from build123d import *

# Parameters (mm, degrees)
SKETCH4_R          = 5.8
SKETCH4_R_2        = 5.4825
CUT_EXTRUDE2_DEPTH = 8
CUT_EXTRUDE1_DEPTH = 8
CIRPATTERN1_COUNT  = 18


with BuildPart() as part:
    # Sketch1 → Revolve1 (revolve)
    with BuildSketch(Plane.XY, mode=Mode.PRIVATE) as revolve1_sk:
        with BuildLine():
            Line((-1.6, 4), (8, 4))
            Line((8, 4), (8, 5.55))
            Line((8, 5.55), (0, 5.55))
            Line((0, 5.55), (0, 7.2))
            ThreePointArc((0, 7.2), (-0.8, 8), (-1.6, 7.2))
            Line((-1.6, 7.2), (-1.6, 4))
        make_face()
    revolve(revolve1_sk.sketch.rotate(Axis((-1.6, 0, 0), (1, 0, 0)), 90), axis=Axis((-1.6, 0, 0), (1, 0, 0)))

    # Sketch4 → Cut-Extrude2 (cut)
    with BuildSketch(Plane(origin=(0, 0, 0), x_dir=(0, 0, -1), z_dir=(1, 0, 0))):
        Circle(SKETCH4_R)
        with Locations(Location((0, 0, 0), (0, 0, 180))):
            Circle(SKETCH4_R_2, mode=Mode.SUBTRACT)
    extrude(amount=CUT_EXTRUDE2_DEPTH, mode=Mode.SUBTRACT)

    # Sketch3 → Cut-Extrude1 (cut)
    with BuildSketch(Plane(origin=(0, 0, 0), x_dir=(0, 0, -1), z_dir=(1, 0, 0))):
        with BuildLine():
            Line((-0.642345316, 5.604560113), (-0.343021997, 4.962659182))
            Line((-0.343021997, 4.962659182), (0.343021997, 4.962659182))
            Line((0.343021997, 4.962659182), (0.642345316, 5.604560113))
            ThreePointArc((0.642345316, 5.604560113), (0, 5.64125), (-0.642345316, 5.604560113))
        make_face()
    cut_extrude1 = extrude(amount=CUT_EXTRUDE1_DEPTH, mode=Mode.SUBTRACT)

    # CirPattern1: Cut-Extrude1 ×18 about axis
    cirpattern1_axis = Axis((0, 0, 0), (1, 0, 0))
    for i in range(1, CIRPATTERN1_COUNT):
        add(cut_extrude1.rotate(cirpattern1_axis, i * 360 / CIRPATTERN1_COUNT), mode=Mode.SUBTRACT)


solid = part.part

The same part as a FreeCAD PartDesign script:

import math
import FreeCAD as App
import Part
import Sketcher
Q = App.Units.Quantity

doc = App.newDocument("Part")
body = doc.addObject("PartDesign::Body", "Body")

# Sketch on XY plane
sketch1 = doc.addObject("Sketcher::SketchObject", "Sketch")
body.addObject(sketch1)
sketch1.AttachmentSupport = (doc.XY_Plane, [""])
sketch1.MapMode = "FlatFace"
sketch1.addGeometry(Part.LineSegment(App.Vector(-1.6, 4, 0), App.Vector(8, 4, 0)), False)
sketch1.addGeometry(Part.LineSegment(App.Vector(8, 4, 0), App.Vector(8, 5.5, 0)), False)
sketch1.addGeometry(Part.LineSegment(App.Vector(8, 5.5, 0), App.Vector(0, 5.5, 0)), False)
sketch1.addGeometry(Part.LineSegment(App.Vector(0, 5.5, 0), App.Vector(0, 7.2, 0)), False)
sketch1.addGeometry(Part.ArcOfCircle(Part.Circle(App.Vector(-0.8, 7.2, 0), App.Vector(0, 0, 1), 0.8), math.radians(0), math.radians(180)), False)
sketch1.addGeometry(Part.LineSegment(App.Vector(-1.6, 7.2, 0), App.Vector(-1.6, 4, 0)), False)
sketch1.addConstraint(Sketcher.Constraint("Coincident", 0, 2, 1, 1))
sketch1.addConstraint(Sketcher.Constraint("Coincident", 1, 2, 2, 1))
sketch1.addConstraint(Sketcher.Constraint("Coincident", 2, 2, 3, 1))
sketch1.addConstraint(Sketcher.Constraint("Tangent", 3, 2, 4, 1))
sketch1.addConstraint(Sketcher.Constraint("Tangent", 4, 2, 5, 1))
sketch1.addConstraint(Sketcher.Constraint("Coincident", 5, 2, 0, 1))
sketch1.addConstraint(Sketcher.Constraint("Horizontal", 0))
sketch1.addConstraint(Sketcher.Constraint("Vertical", 1))
sketch1.addConstraint(Sketcher.Constraint("Horizontal", 2))
sketch1.addConstraint(Sketcher.Constraint("Vertical", 3))
sketch1.addConstraint(Sketcher.Constraint("Vertical", 5))
sketch1.addConstraint(Sketcher.Constraint("PointOnObject", 2, 2, -2))
sketch1.addConstraint(Sketcher.Constraint("Radius", 4, 0.8))
sketch1.addConstraint(Sketcher.Constraint("DistanceX", 2, 2, 2, 1, 8.0))
sketch1.addConstraint(Sketcher.Constraint("DistanceY", 5, 2, 5, 1, 3.2))
sketch1.addConstraint(Sketcher.Constraint("DistanceY", -1, 1, 0, 2, 4.0))
sketch1.addConstraint(Sketcher.Constraint("DistanceY", 1, 1, 1, 2, 1.55))
revolution = doc.addObject("PartDesign::Revolution", "Revolution")
body.addObject(revolution)
revolution.Profile = sketch1
revolution.ReferenceAxis = (sketch1, ["H_Axis"])
revolution.Angle = 360

# Sketch on YZ plane
sketch2 = doc.addObject("Sketcher::SketchObject", "Sketch001")
body.addObject(sketch2)
sketch2.AttachmentSupport = (doc.YZ_Plane, [""])
sketch2.MapMode = "FlatFace"
sketch2.addGeometry(Part.Circle(App.Vector(0, 0, 0), App.Vector(0, 0, 1), 6), False)
sketch2.addGeometry(Part.Circle(App.Vector(0, 0, 0), App.Vector(0, 0, 1), 5), False)
sketch2.addConstraint(Sketcher.Constraint("Coincident", 0, 3, -1, 1))
sketch2.addConstraint(Sketcher.Constraint("Coincident", 1, 3, -1, 1))
sketch2.addConstraint(Sketcher.Constraint("Diameter", 0, 11.6))
sketch2.addConstraint(Sketcher.Constraint("Diameter", 1, 10.965))
pocket1 = doc.addObject("PartDesign::Pocket", "Pocket")
body.addObject(pocket1)
pocket1.Profile = sketch2
pocket1.Length = 8
pocket1.Reversed = True

# Sketch on YZ plane
sketch3 = doc.addObject("Sketcher::SketchObject", "Sketch002")
body.addObject(sketch3)
sketch3.AttachmentSupport = (doc.YZ_Plane, [""])
sketch3.MapMode = "FlatFace"
sketch3.addGeometry(Part.LineSegment(App.Vector(5.6, 0.6, 0), App.Vector(5, 0.3, 0)), False)
sketch3.addGeometry(Part.LineSegment(App.Vector(5, 0.3, 0), App.Vector(5, -0.3, 0)), False)
sketch3.addGeometry(Part.LineSegment(App.Vector(5, -0.3, 0), App.Vector(5.6, -0.6, 0)), False)
sketch3.addGeometry(Part.ArcOfCircle(Part.Circle(App.Vector(0, 0, 0), App.Vector(0, 0, 1), 5.6), math.radians(-6.54), math.radians(6.54)), False)
sketch3.addConstraint(Sketcher.Constraint("Coincident", 0, 2, 1, 1))
sketch3.addConstraint(Sketcher.Constraint("Coincident", 1, 2, 2, 1))
sketch3.addConstraint(Sketcher.Constraint("Coincident", 2, 2, 3, 1))
sketch3.addConstraint(Sketcher.Constraint("Coincident", 3, 2, 0, 1))
sketch3.addConstraint(Sketcher.Constraint("Vertical", 1))
sketch3.addConstraint(Sketcher.Constraint("Coincident", 3, 3, -1, 1))
sketch3.addConstraint(Sketcher.Constraint("Vertical", 2, 2, 3, 2))
sketch3.addConstraint(Sketcher.Constraint("Equal", 0, 2))
sketch3.addConstraint(Sketcher.Constraint("Angle", 0, Q("-155 deg")))
sketch3.addConstraint(Sketcher.Constraint("Radius", 3, 5.64125))
sketch3.addConstraint(Sketcher.Constraint("DistanceX", 1, 2, 2, 2, 0.641901))
sketch3.addConstraint(Sketcher.Constraint("DistanceY", 1, 2, 1, 1, 0.686044))
pocket2 = doc.addObject("PartDesign::Pocket", "Pocket001")
body.addObject(pocket2)
pocket2.Profile = sketch3
pocket2.Length = 8
pocket2.Reversed = True
doc.recompute()

polarpattern = doc.addObject("PartDesign::PolarPattern", "PolarPattern")
body.addObject(polarpattern)
polarpattern.Originals = [pocket2]
polarpattern.Axis = (doc.X_Axis, [""])
polarpattern.Angle = 360
polarpattern.Occurrences = 18
body.Tip = polarpattern

doc.recompute()
